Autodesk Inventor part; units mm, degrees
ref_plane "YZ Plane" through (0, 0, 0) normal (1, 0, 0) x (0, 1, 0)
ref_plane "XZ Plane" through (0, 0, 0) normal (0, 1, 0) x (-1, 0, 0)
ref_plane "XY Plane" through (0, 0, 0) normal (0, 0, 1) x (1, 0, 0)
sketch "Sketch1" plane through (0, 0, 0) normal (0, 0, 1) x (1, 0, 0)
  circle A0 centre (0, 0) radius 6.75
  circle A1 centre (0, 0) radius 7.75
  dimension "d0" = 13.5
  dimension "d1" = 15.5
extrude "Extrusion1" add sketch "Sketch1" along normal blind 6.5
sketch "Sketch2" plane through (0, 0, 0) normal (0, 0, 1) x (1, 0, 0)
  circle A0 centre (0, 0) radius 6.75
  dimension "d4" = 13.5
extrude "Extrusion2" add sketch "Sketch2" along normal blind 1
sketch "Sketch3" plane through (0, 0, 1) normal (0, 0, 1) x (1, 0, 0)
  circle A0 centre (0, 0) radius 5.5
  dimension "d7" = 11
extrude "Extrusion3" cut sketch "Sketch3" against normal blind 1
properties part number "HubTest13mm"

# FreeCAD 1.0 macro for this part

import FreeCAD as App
import Part
import Sketcher
Q = App.Units.Quantity

doc = App.newDocument("Part")
body = doc.addObject("PartDesign::Body", "Body")

# Sketch on XY plane
sketch1 = body.newObject("Sketcher::SketchObject", "Sketch")
sketch1.AttachmentSupport = (doc.getObject("XY_Plane"), [""])
sketch1.MapMode = "FlatFace"
sketch1.addGeometry([
    Part.Circle(App.Vector(0, 0, 0), App.Vector(0, 0, 1), 8),
    Part.Circle(App.Vector(0, 0, 0), App.Vector(0, 0, 1), 7),
], False)
sketch1.addConstraint([
    Sketcher.Constraint("Coincident", 0, 3, -1, 1),
    Sketcher.Constraint("Coincident", 1, 3, -1, 1),
    Sketcher.Constraint("Diameter", 0, Q("15.5 mm")),
    Sketcher.Constraint("Diameter", 1, Q("13.5 mm")),
])
pad1 = body.newObject("PartDesign::Pad", "Pad")
pad1.Profile = sketch1
pad1.Length = 6.5

# Sketch on XY plane
sketch2 = body.newObject("Sketcher::SketchObject", "Sketch001")
sketch2.AttachmentSupport = (doc.getObject("XY_Plane"), [""])
sketch2.MapMode = "FlatFace"
sketch2.addGeometry(Part.Circle(App.Vector(0, 0, 0), App.Vector(0, 0, 1), 7), False)
sketch2.addConstraint([
    Sketcher.Constraint("Coincident", 0, 3, -1, 1),
    Sketcher.Constraint("Diameter", 0, Q("13.5 mm")),
])
pad2 = body.newObject("PartDesign::Pad", "Pad001")
pad2.Profile = sketch2
pad2.Length = 1

# Sketch on XY plane
sketch3 = body.newObject("Sketcher::SketchObject", "Sketch002")
sketch3.AttachmentSupport = (doc.getObject("XY_Plane"), [""])
sketch3.MapMode = "FlatFace"
sketch3.AttachmentOffset = App.Placement(App.Vector(0, 0, 1), App.Rotation())
sketch3.addGeometry(Part.Circle(App.Vector(0, 0, 0), App.Vector(0, 0, 1), 6), False)
sketch3.addConstraint([
    Sketcher.Constraint("Coincident", 0, 3, -1, 1),
    Sketcher.Constraint("Diameter", 0, Q("11 mm")),
])
pocket1 = body.newObject("PartDesign::Pocket", "Pocket")
pocket1.Profile = sketch3
pocket1.Length = 1

doc.recompute()
